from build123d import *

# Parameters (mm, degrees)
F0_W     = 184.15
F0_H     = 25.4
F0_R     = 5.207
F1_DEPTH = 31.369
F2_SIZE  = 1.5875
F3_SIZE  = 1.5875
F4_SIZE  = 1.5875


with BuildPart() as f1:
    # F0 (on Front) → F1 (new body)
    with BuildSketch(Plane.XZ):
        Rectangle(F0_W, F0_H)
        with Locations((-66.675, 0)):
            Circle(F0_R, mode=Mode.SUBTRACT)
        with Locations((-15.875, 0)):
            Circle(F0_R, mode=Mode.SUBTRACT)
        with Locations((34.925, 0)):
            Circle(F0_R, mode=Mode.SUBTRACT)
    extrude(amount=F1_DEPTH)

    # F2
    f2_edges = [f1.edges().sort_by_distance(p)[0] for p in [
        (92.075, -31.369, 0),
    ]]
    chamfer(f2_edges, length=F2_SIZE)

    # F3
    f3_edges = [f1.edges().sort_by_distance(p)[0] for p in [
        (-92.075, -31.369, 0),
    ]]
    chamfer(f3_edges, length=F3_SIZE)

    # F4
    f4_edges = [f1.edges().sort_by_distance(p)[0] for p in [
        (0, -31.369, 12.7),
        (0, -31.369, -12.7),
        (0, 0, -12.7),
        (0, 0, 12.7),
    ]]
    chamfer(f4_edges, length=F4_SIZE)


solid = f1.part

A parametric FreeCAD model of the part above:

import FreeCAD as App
import Part
import Sketcher
Q = App.Units.Quantity


def edges_at(feature, points):
    """Names of the edges that pass closest to the given points."""
    edges = feature.Shape.Edges
    near = lambda p: min(range(len(edges)), key=lambda i: edges[i].distToShape(Part.Vertex(*p))[0])
    return sorted({f"Edge{near(p) + 1}" for p in points})


def add_polygon(sketch, points):
    """Adds a closed chain of lines whose ends are joined by coincident constraints."""
    first, n = sketch.GeometryCount, len(points)
    for a, b in zip(points, points[1:] + points[:1]):
        sketch.addGeometry(Part.LineSegment(App.Vector(*a, 0), App.Vector(*b, 0)), False)
    for i in range(n):
        sketch.addConstraint(Sketcher.Constraint("Coincident", first + i, 2, first + (i + 1) % n, 1))

doc = App.newDocument("Part")
body = doc.addObject("PartDesign::Body", "Body")

sketch1 = body.newObject("Sketcher::SketchObject", "Sketch")
sketch1.AttachmentSupport = (doc.getObject("XZ_Plane"), [""])
sketch1.MapMode = "FlatFace"
add_polygon(sketch1, [(-92, 13), (-92, -13), (92, -13), (92, 13)])
sketch1.addGeometry(Part.Circle(App.Vector(-67, 0, 0), App.Vector(0, 0, 1), 5), False)
sketch1.addGeometry(Part.Circle(App.Vector(-16, 0, 0), App.Vector(0, 0, 1), 5), False)
sketch1.addGeometry(Part.Circle(App.Vector(35, 0, 0), App.Vector(0, 0, 1), 5), False)
sketch1.addConstraint(Sketcher.Constraint("Vertical", 0))
sketch1.addConstraint(Sketcher.Constraint("Horizontal", 1))
sketch1.addConstraint(Sketcher.Constraint("Vertical", 2))
sketch1.addConstraint(Sketcher.Constraint("Horizontal", 3))
sketch1.addConstraint(Sketcher.Constraint("Equal", 4, 5))
sketch1.addConstraint(Sketcher.Constraint("Equal", 5, 6))
sketch1.addConstraint(Sketcher.Constraint("Symmetric", 0, 2, 2, 2, -1, 1))
sketch1.addConstraint(Sketcher.Constraint("PointOnObject", 4, 3, -1))
sketch1.addConstraint(Sketcher.Constraint("PointOnObject", 5, 3, -1))
sketch1.addConstraint(Sketcher.Constraint("PointOnObject", 6, 3, -1))
sketch1.addConstraint(Sketcher.Constraint("Diameter", 4, Q("0.41 in")))
sketch1.addConstraint(Sketcher.Constraint("DistanceY", 0, 2, 0, 1, Q("1 in")))
sketch1.addConstraint(Sketcher.Constraint("DistanceX", 4, 3, 5, 3, Q("2 in")))
sketch1.addConstraint(Sketcher.Constraint("DistanceX", 5, 3, 6, 3, Q("2 in")))
sketch1.addConstraint(Sketcher.Constraint("DistanceX", 0, 2, 4, 3, Q("1 in")))
sketch1.addConstraint(Sketcher.Constraint("DistanceX", 1, 1, 1, 2, Q("7.25 in")))
pad1 = body.newObject("PartDesign::Pad", "Pad")
pad1.Profile = sketch1
pad1.Length = Q("1.235 in")
doc.recompute()

chamfer = body.newObject("PartDesign::Chamfer", "Chamfer")
chamfer.Base = (pad1, edges_at(pad1, [(92.075, -31.369, 0)]))
chamfer.Size = Q("0.0625 in")
doc.recompute()

chamfer2 = body.newObject("PartDesign::Chamfer", "Chamfer001")
chamfer2.Base = (chamfer, edges_at(chamfer, [(-92.075, -31.369, 0)]))
chamfer2.Size = Q("0.0625 in")
doc.recompute()

chamfer3 = body.newObject("PartDesign::Chamfer", "Chamfer002")
chamfer3.Base = (chamfer2, edges_at(chamfer2, [
    (0, -31.369, 12.7),
    (0, -31.369, -12.7),
    (0, 0, -12.7),
    (0, 0, 12.7),
]))
chamfer3.Size = Q("0.0625 in")

doc.recompute()
